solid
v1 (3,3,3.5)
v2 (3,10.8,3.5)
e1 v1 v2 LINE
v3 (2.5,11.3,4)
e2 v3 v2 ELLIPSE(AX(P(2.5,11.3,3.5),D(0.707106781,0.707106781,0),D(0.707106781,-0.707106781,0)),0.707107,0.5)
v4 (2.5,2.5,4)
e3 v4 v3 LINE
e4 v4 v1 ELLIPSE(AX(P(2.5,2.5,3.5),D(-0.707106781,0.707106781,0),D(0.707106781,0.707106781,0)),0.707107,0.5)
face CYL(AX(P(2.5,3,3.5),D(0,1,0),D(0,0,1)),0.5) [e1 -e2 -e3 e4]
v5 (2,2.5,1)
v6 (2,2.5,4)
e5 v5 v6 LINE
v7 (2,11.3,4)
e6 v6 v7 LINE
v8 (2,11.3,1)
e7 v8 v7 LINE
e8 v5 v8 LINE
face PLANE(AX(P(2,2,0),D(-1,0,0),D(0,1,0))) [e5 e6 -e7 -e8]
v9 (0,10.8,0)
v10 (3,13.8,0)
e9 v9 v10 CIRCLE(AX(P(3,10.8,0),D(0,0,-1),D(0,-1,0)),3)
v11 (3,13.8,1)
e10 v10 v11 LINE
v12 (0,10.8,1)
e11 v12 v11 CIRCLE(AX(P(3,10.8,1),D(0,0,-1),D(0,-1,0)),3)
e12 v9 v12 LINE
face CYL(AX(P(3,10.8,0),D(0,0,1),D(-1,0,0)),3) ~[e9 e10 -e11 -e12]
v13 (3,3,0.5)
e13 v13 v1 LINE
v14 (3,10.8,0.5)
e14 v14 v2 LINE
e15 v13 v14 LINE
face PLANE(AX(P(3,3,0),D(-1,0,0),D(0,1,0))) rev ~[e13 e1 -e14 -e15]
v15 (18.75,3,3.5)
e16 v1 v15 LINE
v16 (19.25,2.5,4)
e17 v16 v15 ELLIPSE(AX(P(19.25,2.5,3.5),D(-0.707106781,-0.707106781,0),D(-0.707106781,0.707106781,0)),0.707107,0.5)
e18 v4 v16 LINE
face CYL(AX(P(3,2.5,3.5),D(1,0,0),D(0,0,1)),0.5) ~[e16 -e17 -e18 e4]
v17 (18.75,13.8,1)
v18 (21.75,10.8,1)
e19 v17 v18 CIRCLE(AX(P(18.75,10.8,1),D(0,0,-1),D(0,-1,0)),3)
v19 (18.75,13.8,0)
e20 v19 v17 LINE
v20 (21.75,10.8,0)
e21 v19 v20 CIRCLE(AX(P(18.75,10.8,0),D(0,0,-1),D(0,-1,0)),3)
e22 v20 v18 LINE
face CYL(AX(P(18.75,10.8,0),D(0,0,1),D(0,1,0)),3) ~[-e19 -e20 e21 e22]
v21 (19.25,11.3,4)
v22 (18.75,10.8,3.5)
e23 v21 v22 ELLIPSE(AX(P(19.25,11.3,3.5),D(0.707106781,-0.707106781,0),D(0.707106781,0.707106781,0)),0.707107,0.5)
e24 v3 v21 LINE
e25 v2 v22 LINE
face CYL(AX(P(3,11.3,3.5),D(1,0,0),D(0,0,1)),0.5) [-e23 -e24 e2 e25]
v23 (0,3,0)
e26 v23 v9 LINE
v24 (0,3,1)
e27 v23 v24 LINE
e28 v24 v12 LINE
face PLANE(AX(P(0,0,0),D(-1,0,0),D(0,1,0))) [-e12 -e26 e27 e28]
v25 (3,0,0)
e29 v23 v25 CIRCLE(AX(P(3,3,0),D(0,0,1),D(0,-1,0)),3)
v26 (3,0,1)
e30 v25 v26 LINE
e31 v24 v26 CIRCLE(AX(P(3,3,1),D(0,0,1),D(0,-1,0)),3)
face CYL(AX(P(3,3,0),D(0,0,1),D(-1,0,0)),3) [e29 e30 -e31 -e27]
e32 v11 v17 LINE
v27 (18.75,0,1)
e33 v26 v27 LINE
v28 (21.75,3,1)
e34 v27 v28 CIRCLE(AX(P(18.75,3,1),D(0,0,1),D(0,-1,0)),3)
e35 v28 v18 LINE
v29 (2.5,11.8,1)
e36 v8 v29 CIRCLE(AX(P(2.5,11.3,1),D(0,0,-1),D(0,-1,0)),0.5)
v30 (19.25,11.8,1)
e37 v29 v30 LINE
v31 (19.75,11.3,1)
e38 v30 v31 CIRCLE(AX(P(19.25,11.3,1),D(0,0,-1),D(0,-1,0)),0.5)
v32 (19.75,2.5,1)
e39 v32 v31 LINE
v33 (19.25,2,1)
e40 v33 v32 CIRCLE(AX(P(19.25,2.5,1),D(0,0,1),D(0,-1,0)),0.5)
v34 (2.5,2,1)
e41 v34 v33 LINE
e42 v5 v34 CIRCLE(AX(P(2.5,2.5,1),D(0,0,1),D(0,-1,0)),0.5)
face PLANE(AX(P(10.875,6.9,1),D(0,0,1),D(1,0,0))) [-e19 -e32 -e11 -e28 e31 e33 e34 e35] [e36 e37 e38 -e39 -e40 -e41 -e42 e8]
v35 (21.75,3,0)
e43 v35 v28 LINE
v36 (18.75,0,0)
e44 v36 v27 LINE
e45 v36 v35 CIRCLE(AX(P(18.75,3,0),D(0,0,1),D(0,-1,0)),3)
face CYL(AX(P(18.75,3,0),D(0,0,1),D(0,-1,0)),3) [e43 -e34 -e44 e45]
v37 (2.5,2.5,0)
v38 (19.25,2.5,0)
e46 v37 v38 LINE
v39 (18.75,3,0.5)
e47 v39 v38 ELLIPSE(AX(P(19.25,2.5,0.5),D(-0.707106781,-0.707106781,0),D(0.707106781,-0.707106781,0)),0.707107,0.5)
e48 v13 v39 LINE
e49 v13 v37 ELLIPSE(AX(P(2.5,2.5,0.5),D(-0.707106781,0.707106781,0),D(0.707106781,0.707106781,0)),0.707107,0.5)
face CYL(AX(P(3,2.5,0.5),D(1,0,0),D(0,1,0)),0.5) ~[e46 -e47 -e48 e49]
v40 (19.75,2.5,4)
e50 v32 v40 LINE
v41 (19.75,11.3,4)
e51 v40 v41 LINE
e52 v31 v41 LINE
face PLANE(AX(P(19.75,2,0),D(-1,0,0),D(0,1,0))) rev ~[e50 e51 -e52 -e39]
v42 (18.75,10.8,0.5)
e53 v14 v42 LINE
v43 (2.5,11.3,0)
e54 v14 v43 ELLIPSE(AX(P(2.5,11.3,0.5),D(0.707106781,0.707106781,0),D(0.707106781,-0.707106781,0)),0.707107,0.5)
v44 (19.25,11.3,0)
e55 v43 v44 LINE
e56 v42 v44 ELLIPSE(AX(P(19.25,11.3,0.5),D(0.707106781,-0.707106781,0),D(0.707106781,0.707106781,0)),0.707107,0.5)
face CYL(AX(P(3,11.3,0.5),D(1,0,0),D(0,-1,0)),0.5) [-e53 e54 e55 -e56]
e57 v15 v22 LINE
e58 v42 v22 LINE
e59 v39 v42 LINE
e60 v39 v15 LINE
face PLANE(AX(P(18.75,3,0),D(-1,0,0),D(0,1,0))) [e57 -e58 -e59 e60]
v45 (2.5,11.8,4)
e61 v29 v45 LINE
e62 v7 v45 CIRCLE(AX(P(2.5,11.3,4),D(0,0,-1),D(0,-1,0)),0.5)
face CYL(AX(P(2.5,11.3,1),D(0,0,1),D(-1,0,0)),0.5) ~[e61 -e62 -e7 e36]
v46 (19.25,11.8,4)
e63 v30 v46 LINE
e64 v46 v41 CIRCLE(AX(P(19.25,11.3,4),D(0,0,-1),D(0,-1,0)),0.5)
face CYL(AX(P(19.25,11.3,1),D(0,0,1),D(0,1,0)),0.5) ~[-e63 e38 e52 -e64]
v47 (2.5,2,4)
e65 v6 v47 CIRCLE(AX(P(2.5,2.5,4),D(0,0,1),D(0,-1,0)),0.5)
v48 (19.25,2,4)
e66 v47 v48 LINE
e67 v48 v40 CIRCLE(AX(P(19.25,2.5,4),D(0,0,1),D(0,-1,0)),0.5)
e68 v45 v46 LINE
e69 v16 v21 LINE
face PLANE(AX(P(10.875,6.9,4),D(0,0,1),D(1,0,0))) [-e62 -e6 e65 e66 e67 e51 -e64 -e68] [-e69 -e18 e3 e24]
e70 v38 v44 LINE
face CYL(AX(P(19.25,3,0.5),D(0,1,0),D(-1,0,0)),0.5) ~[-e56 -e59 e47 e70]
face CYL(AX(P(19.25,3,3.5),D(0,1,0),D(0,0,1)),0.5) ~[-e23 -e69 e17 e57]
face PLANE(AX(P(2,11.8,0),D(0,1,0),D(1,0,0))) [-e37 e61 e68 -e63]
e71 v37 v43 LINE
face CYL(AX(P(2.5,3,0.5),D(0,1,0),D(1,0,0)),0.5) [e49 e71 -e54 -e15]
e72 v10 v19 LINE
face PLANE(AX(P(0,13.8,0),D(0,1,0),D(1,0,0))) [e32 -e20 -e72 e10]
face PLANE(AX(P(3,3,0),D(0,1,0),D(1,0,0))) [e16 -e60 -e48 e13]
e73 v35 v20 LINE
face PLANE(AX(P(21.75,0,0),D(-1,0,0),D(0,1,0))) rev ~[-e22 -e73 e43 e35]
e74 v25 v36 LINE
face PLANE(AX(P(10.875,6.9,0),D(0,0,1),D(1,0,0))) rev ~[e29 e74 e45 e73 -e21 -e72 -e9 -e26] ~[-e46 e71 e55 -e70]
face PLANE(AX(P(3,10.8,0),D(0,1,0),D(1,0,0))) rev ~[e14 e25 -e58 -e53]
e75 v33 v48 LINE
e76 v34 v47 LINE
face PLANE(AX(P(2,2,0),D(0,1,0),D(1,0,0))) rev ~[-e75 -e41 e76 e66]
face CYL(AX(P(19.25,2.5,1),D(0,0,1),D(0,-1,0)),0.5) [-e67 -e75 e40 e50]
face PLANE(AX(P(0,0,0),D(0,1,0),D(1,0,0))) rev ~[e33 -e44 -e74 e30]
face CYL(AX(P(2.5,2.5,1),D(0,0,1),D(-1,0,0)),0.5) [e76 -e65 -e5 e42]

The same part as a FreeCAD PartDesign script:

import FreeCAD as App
import Part
import Sketcher
from FreeCAD import Vector
Q = App.Units.Quantity


def edges_at(feature, points):
    """Names of the edges that pass closest to the given points."""
    edges = feature.Shape.Edges
    near = lambda p: min(range(len(edges)), key=lambda i: edges[i].distToShape(Part.Vertex(*p))[0])
    return sorted({f"Edge{near(p) + 1}" for p in points})


def add_polygon(sketch, points):
    """Adds a closed chain of lines whose ends are joined by coincident constraints."""
    first, n = sketch.GeometryCount, len(points)
    for a, b in zip(points, points[1:] + points[:1]):
        sketch.addGeometry(Part.LineSegment(App.Vector(*a, 0), App.Vector(*b, 0)), False)
    for i in range(n):
        sketch.addConstraint(Sketcher.Constraint("Coincident", first + i, 2, first + (i + 1) % n, 1))

doc = App.newDocument("Part")
body = doc.addObject("PartDesign::Body", "Body")

sketch1 = body.newObject("Sketcher::SketchObject", "Sketch")
sketch1.AttachmentSupport = (doc.getObject("XY_Plane"), [""])
sketch1.MapMode = "FlatFace"
add_polygon(sketch1, [(0, 14), (0, 0), (22, 0), (22, 14)])
add_polygon(sketch1, [(20, 2), (2, 2), (2, 12), (20, 12)])
sketch1.addConstraint([
    Sketcher.Constraint("Vertical", 0),
    Sketcher.Constraint("Horizontal", 1),
    Sketcher.Constraint("Vertical", 2),
    Sketcher.Constraint("Horizontal", 3),
    Sketcher.Constraint("Horizontal", 4),
    Sketcher.Constraint("Vertical", 5),
    Sketcher.Constraint("Horizontal", 6),
    Sketcher.Constraint("Vertical", 7),
    Sketcher.Constraint("Coincident", 0, 2, -1, 1),
    Sketcher.Constraint("DistanceY", 0, 2, 0, 1, Q("13.8 mm")),
    Sketcher.Constraint("DistanceY", 5, 1, 5, 2, Q("9.8 mm")),
    Sketcher.Constraint("DistanceX", -1, 1, 4, 2, Q("2 mm")),
    Sketcher.Constraint("DistanceY", -1, 1, 4, 2, Q("2 mm")),
    Sketcher.Constraint("DistanceX", 6, 2, 2, 2, Q("2 mm")),
    Sketcher.Constraint("DistanceX", 1, 1, 1, 2, Q("21.75 mm")),
])
pad1 = body.newObject("PartDesign::Pad", "Pad")
pad1.Profile = sketch1
pad1.Length = 1

sketch2 = body.newObject("Sketcher::SketchObject", "Sketch001")
sketch2.AttachmentSupport = (doc.getObject("XY_Plane"), [""])
sketch2.MapMode = "FlatFace"
add_polygon(sketch2, [(2, 12), (2, 2), (20, 2), (20, 12)])
add_polygon(sketch2, [(19, 3), (3, 3), (3, 11), (19, 11)])
sketch2.addConstraint([
    Sketcher.Constraint("Vertical", 0),
    Sketcher.Constraint("Horizontal", 1),
    Sketcher.Constraint("Vertical", 2),
    Sketcher.Constraint("Horizontal", 3),
    Sketcher.Constraint("Horizontal", 4),
    Sketcher.Constraint("Vertical", 5),
    Sketcher.Constraint("Horizontal", 6),
    Sketcher.Constraint("Vertical", 7),
    Sketcher.Constraint("DistanceY", 0, 2, 0, 1, Q("9.8 mm")),
    Sketcher.Constraint("DistanceY", 5, 1, 5, 2, Q("7.8 mm")),
    Sketcher.Constraint("DistanceX", -1, 1, 0, 2, Q("2 mm")),
    Sketcher.Constraint("DistanceY", -1, 1, 0, 2, Q("2 mm")),
    Sketcher.Constraint("DistanceX", -1, 1, 4, 2, Q("3 mm")),
    Sketcher.Constraint("DistanceY", -1, 1, 4, 2, Q("3 mm")),
    Sketcher.Constraint("DistanceX", 6, 2, 2, 2, Q("1 mm")),
    Sketcher.Constraint("DistanceX", 1, 1, 1, 2, Q("17.75 mm")),
])
pad2 = body.newObject("PartDesign::Pad", "Pad001")
pad2.Profile = sketch2
pad2.Length = 4
doc.recompute()

fillet = body.newObject("PartDesign::Fillet", "Fillet")
fillet.Base = (pad2, edges_at(pad2, [
    (10.875, 10.8, 4),
    (18.75, 6.9, 4),
    (10.875, 3, 4),
    (3, 6.9, 4),
    (10.875, 10.8, 0),
    (3, 6.9, 0),
    (10.875, 3, 0),
    (18.75, 6.9, 0),
]))
fillet.Radius = 0.5
doc.recompute()

fillet2 = body.newObject("PartDesign::Fillet", "Fillet001")
fillet2.Base = (fillet, edges_at(fillet, [
    (2, 11.8, 2.5),
    (2, 2, 2.5),
    (19.75, 2, 2.5),
    (19.75, 11.8, 2.5),
]))
fillet2.Radius = 0.5
doc.recompute()

fillet3 = body.newObject("PartDesign::Fillet", "Fillet002")
fillet3.Base = (fillet2, edges_at(fillet2, [
    (0, 13.8, 0.5),
    (21.75, 13.8, 0.5),
    (21.75, 0, 0.5),
    (0, 0, 0.5),
]))
fillet3.Radius = 3

doc.recompute()
